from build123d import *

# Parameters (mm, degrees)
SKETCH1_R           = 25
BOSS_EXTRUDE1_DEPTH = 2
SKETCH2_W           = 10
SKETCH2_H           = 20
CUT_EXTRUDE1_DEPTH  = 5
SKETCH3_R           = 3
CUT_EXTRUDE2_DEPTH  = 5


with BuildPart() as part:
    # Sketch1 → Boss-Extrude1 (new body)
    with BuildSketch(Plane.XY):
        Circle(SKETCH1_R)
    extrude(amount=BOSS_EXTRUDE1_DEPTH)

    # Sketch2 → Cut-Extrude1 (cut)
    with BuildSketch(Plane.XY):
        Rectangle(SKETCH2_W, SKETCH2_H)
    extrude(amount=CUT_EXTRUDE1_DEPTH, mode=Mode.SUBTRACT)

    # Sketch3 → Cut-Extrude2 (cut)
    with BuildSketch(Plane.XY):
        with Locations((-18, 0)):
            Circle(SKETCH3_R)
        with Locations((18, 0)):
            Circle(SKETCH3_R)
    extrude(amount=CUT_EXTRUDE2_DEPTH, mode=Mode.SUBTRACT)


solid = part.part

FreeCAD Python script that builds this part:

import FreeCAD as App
import Part
import Sketcher

V = App.Vector
Q = App.Units.Quantity

doc = App.newDocument("Part")
body = doc.addObject("PartDesign::Body", "Body")

# Sketch on XY plane
sketch1 = body.newObject("Sketcher::SketchObject", "Sketch")
sketch1.AttachmentSupport = (doc.getObject("XY_Plane"), [""])
sketch1.MapMode = "FlatFace"
sketch1.addGeometry(Part.Circle(V(0, 0, 0), V(0, 0, 1), 25), False)
sketch1.addConstraint(Sketcher.Constraint("Coincident", 0, 3, -1, 1))
sketch1.addConstraint(Sketcher.Constraint("Diameter", 0, Q("50 mm")))
pad1 = body.newObject("PartDesign::Pad", "Pad")
pad1.Profile = sketch1
pad1.Length = 2

# Sketch on XY plane
sketch2 = body.newObject("Sketcher::SketchObject", "Sketch001")
sketch2.AttachmentSupport = (doc.getObject("XY_Plane"), [""])
sketch2.MapMode = "FlatFace"
sketch2.addGeometry(Part.LineSegment(V(-5, 10, 0), V(-5, -10, 0)), False)
sketch2.addGeometry(Part.LineSegment(V(-5, -10, 0), V(5, -10, 0)), False)
sketch2.addGeometry(Part.LineSegment(V(5, -10, 0), V(5, 10, 0)), False)
sketch2.addGeometry(Part.LineSegment(V(5, 10, 0), V(-5, 10, 0)), False)
sketch2.addConstraint(Sketcher.Constraint("Coincident", 0, 2, 1, 1))
sketch2.addConstraint(Sketcher.Constraint("Coincident", 1, 2, 2, 1))
sketch2.addConstraint(Sketcher.Constraint("Coincident", 2, 2, 3, 1))
sketch2.addConstraint(Sketcher.Constraint("Coincident", 3, 2, 0, 1))
sketch2.addConstraint(Sketcher.Constraint("Vertical", 0))
sketch2.addConstraint(Sketcher.Constraint("Horizontal", 1))
sketch2.addConstraint(Sketcher.Constraint("Vertical", 2))
sketch2.addConstraint(Sketcher.Constraint("Horizontal", 3))
sketch2.addConstraint(Sketcher.Constraint("Symmetric", 0, 2, 2, 2, -1, 1))
sketch2.addConstraint(Sketcher.Constraint("DistanceX", 1, 1, 1, 2, Q("10 mm")))
sketch2.addConstraint(Sketcher.Constraint("DistanceY", 0, 2, 0, 1, Q("20 mm")))
pocket1 = body.newObject("PartDesign::Pocket", "Pocket")
pocket1.Profile = sketch2
pocket1.Length = 5
pocket1.Reversed = True

# Sketch on XY plane
sketch3 = body.newObject("Sketcher::SketchObject", "Sketch002")
sketch3.AttachmentSupport = (doc.getObject("XY_Plane"), [""])
sketch3.MapMode = "FlatFace"
sketch3.addGeometry(Part.Circle(V(-18, 0, 0), V(0, 0, 1), 3), False)
sketch3.addGeometry(Part.Circle(V(18, 0, 0), V(0, 0, 1), 3), False)
sketch3.addConstraint(Sketcher.Constraint("Equal", 0, 1))
sketch3.addConstraint(Sketcher.Constraint("Symmetric", 0, 3, 1, 3, -1, 1))
sketch3.addConstraint(Sketcher.Constraint("PointOnObject", 0, 3, -1))
sketch3.addConstraint(Sketcher.Constraint("Diameter", 0, Q("6 mm")))
sketch3.addConstraint(Sketcher.Constraint("DistanceX", 0, 3, -1, 1, Q("18 mm")))
pocket2 = body.newObject("PartDesign::Pocket", "Pocket001")
pocket2.Profile = sketch3
pocket2.Length = 5
pocket2.Reversed = True

doc.recompute()
